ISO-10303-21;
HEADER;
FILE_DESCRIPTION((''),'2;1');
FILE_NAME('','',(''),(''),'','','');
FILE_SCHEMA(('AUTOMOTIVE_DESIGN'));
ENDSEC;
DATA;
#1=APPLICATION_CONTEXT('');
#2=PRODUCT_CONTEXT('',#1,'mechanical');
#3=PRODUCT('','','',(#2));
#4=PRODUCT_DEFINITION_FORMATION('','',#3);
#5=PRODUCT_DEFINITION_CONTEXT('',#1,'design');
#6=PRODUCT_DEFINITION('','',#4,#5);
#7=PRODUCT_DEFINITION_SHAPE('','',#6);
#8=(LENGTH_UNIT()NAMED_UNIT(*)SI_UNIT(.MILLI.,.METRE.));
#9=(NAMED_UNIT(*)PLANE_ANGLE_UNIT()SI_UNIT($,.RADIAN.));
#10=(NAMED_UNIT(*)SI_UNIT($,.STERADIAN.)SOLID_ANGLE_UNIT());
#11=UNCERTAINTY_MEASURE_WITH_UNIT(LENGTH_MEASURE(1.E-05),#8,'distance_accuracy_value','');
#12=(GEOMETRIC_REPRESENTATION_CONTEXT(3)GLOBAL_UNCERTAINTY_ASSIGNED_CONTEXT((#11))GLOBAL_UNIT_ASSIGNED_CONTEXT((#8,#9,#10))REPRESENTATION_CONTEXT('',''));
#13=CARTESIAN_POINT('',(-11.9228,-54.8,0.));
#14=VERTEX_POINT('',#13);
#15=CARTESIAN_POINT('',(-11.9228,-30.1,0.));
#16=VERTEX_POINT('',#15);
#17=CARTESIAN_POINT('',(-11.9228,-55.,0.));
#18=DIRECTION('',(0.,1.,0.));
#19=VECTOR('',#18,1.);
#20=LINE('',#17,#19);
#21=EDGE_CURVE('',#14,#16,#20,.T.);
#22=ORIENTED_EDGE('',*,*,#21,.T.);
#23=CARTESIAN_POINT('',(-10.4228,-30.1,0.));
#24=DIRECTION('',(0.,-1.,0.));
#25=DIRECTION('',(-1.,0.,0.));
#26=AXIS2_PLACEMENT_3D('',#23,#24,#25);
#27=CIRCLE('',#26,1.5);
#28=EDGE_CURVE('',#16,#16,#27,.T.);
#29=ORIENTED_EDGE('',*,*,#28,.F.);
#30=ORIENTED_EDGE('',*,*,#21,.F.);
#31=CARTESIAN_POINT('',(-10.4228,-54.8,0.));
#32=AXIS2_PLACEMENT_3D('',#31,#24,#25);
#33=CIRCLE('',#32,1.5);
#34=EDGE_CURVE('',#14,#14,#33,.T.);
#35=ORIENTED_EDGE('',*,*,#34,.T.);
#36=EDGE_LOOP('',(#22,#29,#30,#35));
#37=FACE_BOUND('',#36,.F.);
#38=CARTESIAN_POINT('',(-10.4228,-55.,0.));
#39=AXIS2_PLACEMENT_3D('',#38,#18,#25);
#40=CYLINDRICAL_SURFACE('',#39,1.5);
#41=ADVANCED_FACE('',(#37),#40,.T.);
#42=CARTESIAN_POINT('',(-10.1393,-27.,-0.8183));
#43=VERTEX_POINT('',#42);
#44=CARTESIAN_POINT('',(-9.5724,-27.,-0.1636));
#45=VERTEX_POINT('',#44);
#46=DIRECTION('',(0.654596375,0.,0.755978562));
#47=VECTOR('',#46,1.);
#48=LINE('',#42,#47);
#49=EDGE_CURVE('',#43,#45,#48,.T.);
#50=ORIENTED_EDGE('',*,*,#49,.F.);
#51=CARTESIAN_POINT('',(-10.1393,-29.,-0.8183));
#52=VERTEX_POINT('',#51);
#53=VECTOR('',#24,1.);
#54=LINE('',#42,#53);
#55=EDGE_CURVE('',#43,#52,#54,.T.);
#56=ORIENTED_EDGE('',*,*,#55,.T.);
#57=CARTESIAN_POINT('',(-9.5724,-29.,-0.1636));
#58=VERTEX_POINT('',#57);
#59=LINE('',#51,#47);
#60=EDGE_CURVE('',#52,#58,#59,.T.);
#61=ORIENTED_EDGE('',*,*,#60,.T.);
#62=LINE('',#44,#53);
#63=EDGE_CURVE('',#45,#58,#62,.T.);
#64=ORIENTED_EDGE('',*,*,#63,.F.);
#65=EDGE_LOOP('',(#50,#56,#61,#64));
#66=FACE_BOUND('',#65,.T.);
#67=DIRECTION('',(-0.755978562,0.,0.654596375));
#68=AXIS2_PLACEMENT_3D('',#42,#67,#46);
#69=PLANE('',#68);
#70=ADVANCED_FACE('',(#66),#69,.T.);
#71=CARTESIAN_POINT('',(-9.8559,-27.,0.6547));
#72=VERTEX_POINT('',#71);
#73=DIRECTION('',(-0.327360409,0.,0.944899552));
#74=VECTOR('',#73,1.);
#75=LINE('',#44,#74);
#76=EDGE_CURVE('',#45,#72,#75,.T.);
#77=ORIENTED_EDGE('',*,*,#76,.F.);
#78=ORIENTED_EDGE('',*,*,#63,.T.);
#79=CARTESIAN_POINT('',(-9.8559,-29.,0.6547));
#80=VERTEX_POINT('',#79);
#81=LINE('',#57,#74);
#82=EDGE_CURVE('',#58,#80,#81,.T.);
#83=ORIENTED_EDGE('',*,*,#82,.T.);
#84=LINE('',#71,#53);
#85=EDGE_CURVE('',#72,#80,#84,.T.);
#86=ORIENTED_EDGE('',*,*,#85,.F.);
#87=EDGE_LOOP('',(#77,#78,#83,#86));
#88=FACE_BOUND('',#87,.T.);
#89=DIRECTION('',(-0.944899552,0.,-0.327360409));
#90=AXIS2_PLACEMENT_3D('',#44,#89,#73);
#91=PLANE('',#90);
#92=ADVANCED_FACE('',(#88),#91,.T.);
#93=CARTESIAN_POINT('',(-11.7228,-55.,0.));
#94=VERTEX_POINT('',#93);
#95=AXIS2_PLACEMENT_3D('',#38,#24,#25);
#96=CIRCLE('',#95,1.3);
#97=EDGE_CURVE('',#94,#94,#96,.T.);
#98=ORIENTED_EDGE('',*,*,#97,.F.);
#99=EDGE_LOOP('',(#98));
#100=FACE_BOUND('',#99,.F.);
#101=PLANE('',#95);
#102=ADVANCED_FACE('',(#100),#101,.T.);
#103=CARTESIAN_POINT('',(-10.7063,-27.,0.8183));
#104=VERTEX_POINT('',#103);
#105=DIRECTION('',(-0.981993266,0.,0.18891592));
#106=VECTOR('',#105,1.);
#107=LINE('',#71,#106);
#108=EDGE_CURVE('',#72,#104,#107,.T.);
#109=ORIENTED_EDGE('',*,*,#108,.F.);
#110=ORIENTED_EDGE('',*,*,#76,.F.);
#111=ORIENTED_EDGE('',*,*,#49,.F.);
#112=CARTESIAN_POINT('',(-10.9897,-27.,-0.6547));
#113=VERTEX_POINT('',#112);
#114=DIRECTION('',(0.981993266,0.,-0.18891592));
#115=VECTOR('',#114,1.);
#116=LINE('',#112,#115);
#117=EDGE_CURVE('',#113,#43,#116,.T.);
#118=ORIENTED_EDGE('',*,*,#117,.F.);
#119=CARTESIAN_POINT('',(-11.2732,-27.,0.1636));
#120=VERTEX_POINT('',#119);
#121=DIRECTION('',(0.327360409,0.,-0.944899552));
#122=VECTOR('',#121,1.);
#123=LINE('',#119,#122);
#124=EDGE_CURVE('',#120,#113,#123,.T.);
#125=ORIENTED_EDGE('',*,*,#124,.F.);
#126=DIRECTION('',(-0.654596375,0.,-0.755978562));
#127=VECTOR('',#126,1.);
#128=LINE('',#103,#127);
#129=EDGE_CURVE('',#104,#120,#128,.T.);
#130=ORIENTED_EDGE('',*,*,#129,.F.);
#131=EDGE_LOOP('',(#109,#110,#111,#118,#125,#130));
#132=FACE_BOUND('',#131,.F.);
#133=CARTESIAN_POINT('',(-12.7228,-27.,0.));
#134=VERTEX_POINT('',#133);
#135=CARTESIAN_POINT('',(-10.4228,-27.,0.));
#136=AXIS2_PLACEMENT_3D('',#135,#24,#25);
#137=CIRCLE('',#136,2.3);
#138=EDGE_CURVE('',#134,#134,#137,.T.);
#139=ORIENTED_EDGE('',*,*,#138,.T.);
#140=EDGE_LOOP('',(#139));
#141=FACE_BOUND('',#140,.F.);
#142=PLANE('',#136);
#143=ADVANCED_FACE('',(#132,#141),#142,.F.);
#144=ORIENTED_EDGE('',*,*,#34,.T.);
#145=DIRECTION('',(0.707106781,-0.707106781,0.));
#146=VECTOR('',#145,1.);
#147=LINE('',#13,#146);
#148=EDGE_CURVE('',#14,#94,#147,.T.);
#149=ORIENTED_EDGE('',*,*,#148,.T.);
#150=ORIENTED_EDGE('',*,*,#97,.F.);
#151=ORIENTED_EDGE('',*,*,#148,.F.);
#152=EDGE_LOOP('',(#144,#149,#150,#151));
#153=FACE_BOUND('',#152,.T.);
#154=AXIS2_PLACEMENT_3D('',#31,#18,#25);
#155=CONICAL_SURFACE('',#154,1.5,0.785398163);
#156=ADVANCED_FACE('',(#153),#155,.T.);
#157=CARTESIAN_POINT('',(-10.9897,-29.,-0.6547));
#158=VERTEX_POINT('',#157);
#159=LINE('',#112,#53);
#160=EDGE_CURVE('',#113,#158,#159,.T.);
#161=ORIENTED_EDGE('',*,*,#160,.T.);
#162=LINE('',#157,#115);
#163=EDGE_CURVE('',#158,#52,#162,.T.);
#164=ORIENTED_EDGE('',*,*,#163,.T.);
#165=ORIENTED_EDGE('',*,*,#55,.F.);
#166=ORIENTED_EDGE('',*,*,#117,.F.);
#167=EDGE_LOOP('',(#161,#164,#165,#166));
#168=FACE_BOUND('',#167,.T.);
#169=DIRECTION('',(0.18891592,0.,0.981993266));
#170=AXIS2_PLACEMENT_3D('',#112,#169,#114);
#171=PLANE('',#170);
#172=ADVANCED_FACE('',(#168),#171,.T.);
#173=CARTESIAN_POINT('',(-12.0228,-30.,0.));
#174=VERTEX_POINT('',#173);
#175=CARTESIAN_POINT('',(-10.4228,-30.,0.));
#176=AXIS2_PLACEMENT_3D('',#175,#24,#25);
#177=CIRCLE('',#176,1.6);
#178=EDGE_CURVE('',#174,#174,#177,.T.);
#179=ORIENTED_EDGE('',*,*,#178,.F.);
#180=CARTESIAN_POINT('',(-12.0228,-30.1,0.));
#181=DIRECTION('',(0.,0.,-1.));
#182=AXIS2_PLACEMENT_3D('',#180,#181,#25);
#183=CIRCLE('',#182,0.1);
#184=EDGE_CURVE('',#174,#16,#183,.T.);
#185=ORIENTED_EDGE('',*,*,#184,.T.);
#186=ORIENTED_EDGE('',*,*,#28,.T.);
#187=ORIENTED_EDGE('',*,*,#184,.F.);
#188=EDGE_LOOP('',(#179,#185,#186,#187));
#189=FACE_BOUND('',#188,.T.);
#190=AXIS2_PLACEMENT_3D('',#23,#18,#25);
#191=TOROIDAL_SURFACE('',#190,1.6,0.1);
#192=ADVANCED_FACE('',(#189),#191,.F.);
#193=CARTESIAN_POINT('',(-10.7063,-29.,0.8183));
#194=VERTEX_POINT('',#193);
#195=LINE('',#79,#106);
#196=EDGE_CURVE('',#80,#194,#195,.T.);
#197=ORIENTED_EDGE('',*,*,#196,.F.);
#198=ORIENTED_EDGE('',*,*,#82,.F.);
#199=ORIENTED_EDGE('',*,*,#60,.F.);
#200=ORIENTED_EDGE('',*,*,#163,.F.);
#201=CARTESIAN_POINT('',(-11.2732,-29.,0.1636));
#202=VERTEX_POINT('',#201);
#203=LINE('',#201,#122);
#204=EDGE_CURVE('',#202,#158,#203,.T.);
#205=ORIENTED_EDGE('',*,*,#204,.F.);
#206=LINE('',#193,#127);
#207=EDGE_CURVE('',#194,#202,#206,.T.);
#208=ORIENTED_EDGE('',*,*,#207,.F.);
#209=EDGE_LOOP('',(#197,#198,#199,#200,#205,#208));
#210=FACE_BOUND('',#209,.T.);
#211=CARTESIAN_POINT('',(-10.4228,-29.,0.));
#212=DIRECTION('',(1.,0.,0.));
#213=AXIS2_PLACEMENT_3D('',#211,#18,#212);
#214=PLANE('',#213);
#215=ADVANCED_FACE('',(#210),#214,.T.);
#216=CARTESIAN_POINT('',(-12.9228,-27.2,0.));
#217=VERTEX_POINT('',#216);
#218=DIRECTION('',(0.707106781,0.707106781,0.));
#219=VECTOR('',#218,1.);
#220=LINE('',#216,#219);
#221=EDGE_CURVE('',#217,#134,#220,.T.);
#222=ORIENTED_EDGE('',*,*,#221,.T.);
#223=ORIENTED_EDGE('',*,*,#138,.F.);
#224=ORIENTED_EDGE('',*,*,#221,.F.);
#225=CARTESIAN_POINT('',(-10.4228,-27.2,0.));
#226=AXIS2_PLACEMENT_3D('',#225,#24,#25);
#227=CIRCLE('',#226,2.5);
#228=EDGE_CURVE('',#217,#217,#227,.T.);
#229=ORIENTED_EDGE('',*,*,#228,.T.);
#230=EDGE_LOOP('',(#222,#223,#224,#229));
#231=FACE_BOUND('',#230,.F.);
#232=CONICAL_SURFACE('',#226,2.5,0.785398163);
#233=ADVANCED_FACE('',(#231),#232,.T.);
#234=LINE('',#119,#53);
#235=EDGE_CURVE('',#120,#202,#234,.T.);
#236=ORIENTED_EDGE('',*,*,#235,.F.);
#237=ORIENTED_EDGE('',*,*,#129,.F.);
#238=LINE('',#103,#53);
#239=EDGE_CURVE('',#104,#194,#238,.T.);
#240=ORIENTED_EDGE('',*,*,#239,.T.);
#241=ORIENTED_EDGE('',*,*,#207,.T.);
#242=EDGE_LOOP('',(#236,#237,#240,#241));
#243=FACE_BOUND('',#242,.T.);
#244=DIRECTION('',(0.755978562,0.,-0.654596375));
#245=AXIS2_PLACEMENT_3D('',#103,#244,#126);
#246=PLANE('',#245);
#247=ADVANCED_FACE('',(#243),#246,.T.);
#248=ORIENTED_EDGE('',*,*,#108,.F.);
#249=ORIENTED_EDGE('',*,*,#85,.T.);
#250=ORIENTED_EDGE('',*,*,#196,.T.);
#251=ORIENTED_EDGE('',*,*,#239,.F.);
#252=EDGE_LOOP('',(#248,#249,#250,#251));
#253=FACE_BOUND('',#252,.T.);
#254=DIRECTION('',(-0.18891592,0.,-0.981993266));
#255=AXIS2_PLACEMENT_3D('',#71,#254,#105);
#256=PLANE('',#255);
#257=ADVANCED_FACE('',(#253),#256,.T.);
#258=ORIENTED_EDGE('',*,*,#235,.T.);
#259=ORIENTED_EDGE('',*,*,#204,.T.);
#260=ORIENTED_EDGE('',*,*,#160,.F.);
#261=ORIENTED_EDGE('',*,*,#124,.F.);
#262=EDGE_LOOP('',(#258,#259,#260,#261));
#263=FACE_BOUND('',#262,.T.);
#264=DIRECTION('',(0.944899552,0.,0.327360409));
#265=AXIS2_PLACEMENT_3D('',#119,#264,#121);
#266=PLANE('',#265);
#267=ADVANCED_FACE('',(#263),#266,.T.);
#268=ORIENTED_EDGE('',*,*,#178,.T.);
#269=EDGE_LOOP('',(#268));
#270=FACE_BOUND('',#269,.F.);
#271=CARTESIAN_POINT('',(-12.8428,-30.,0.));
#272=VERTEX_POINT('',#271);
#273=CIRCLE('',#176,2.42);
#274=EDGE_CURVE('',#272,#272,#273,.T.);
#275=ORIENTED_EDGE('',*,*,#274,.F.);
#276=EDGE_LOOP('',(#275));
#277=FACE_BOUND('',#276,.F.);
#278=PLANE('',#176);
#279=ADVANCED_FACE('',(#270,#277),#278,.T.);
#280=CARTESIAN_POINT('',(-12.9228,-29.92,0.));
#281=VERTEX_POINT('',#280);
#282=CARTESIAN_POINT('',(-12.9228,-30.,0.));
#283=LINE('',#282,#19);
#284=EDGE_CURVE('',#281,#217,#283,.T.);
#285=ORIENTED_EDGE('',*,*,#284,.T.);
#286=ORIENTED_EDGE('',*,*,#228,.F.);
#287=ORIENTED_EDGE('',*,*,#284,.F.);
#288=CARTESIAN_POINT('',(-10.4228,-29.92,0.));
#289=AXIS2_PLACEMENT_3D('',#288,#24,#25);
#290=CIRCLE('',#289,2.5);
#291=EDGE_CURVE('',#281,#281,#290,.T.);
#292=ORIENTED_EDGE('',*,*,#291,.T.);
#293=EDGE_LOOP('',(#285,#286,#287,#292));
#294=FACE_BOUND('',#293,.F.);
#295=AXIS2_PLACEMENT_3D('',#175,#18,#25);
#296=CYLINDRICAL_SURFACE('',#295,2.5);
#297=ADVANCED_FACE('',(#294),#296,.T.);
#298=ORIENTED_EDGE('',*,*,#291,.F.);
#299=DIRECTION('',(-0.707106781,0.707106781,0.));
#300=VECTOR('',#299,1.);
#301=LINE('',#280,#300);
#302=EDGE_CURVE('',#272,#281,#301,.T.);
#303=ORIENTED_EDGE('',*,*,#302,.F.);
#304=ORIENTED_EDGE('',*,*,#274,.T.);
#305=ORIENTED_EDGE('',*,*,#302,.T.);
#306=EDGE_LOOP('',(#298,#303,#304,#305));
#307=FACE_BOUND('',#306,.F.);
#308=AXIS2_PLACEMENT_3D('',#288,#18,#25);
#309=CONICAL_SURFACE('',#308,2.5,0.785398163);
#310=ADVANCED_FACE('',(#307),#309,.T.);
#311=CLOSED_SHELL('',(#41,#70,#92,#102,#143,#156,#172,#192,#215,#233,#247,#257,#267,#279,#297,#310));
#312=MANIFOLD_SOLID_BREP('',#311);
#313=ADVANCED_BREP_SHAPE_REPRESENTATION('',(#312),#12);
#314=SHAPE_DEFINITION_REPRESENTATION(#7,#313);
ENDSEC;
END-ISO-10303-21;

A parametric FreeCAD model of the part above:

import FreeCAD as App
import Part
import Sketcher

V = App.Vector
Q = App.Units.Quantity


def edges_at(feature, points):
    """Names of the edges that pass closest to the given points."""
    edges = feature.Shape.Edges
    near = lambda p: min(range(len(edges)), key=lambda i: edges[i].distToShape(Part.Vertex(*p))[0])
    return sorted({f"Edge{near(p) + 1}" for p in points})

doc = App.newDocument("Part")
body = doc.addObject("PartDesign::Body", "Body")

# Sketch on XY plane
sketch1 = doc.addObject("Sketcher::SketchObject", "Sketch")
body.addObject(sketch1)
sketch1.AttachmentSupport = (doc.XY_Plane, [""])
sketch1.MapMode = "FlatFace"
sketch1.addGeometry([
    Part.LineSegment(V(-10.4228, -55, 0), V(-10.4228, -27, 0)),  # 0
    Part.LineSegment(V(-10.4228, -27, 0), V(-12.9228, -27, 0)),  # 1
    Part.LineSegment(V(-12.9228, -27, 0), V(-12.9228, -30, 0)),  # 2
    Part.LineSegment(V(-12.9228, -30, 0), V(-11.9228, -30, 0)),  # 3
    Part.LineSegment(V(-11.9228, -30, 0), V(-11.9228, -55, 0)),  # 4
    Part.LineSegment(V(-11.9228, -55, 0), V(-10.4228, -55, 0)),  # 5
], False)
sketch1.addGeometry(Part.LineSegment(V(-10.4228, -27, 0), V(-10.4228, -55, 0)), True)  # axis
sketch1.addConstraint([
    Sketcher.Constraint("Coincident", 0, 2, 1, 1),
    Sketcher.Constraint("Coincident", 1, 2, 2, 1),
    Sketcher.Constraint("Coincident", 2, 2, 3, 1),
    Sketcher.Constraint("Coincident", 3, 2, 4, 1),
    Sketcher.Constraint("Coincident", 4, 2, 5, 1),
    Sketcher.Constraint("Coincident", 5, 2, 0, 1),
    Sketcher.Constraint("Vertical", 0),
    Sketcher.Constraint("Horizontal", 1),
    Sketcher.Constraint("Vertical", 2),
    Sketcher.Constraint("Horizontal", 3),
    Sketcher.Constraint("Vertical", 4),
    Sketcher.Constraint("Horizontal", 5),
    Sketcher.Constraint("Vertical", 6),
    Sketcher.Constraint("Coincident", 6, 1, 0, 2),
    Sketcher.Constraint("Horizontal", 4, 2, 6, 2),
    Sketcher.Constraint("DistanceY", 2, 2, 2, 1, Q("3 mm")),
    Sketcher.Constraint("DistanceY", 4, 2, 4, 1, Q("25 mm")),
    Sketcher.Constraint("DistanceX", 1, 2, 1, 1, Q("2.5 mm")),
    Sketcher.Constraint("DistanceX", 5, 1, 5, 2, Q("1.5 mm")),
    Sketcher.Constraint("DistanceY", 0, 2, -1, 1, Q("27 mm")),
    Sketcher.Constraint("DistanceX", 0, 2, -1, 1, Q("10.4228 mm")),
])
revolution = doc.addObject("PartDesign::Revolution", "Revolution")
body.addObject(revolution)
revolution.Profile = sketch1
revolution.ReferenceAxis = (sketch1, ["Axis0"])
revolution.Angle = 360
doc.recompute()

chamfer = doc.addObject("PartDesign::Chamfer", "Chamfer")
body.addObject(chamfer)
chamfer.Base = (revolution, edges_at(revolution, [(-7.923, -27, 0)]))
chamfer.Size = 0.2

# Sketch on XZ plane
sketch2 = doc.addObject("Sketcher::SketchObject", "Sketch001")
body.addObject(sketch2)
sketch2.AttachmentSupport = (doc.XZ_Plane, [""])
sketch2.MapMode = "FlatFace"
sketch2.AttachmentOffset = App.Placement(V(0, 0, 27), App.Rotation())
sketch2.addGeometry([
    Part.LineSegment(V(-10.7063, 0.8183, 0), V(-9.8559, 0.6547, 0)),  # 0
    Part.LineSegment(V(-9.8559, 0.6547, 0), V(-9.5724, -0.1636, 0)),  # 1
    Part.LineSegment(V(-9.5724, -0.1636, 0), V(-10.1393, -0.8183, 0)),  # 2
    Part.LineSegment(V(-10.1393, -0.8183, 0), V(-10.9897, -0.6547, 0)),  # 3
    Part.LineSegment(V(-10.9897, -0.6547, 0), V(-11.2732, 0.1636, 0)),  # 4
    Part.LineSegment(V(-11.2732, 0.1636, 0), V(-10.7063, 0.8183, 0)),  # 5
], False)
sketch2.addConstraint([
    Sketcher.Constraint("Coincident", 0, 2, 1, 1),
    Sketcher.Constraint("Coincident", 1, 2, 2, 1),
    Sketcher.Constraint("Coincident", 2, 2, 3, 1),
    Sketcher.Constraint("Coincident", 3, 2, 4, 1),
    Sketcher.Constraint("Coincident", 4, 2, 5, 1),
    Sketcher.Constraint("Coincident", 5, 2, 0, 1),
    Sketcher.Constraint("Parallel", 0, 3),
    Sketcher.Constraint("Parallel", 1, 4),
    Sketcher.Constraint("Parallel", 2, 5),
    Sketcher.Constraint("Equal", 0, 1),
    Sketcher.Constraint("Equal", 1, 2),
    Sketcher.Constraint("Equal", 2, 3),
    Sketcher.Constraint("Angle", 0, Q("-10.8895 deg")),
    Sketcher.Constraint("Angle", 2, Q("-130.889 deg")),
    Sketcher.Constraint("Distance", 0, Q("0.866 mm")),
    Sketcher.Constraint("DistanceX", 0, 2, -1, 1, Q("9.856 mm")),
    Sketcher.Constraint("DistanceY", 2, 2, 0, 2, Q("1.473 mm")),
    Sketcher.Constraint("DistanceY", -1, 1, 0, 2, Q("0.6547 mm")),
])
pocket1 = doc.addObject("PartDesign::Pocket", "Pocket")
body.addObject(pocket1)
pocket1.Profile = sketch2
pocket1.Length = 2
pocket1.Reversed = True
doc.recompute()

fillet = doc.addObject("PartDesign::Fillet", "Fillet")
body.addObject(fillet)
fillet.Base = (pocket1, edges_at(pocket1, [(-8.923, -30, 0)]))
fillet.Radius = 0.1
doc.recompute()

chamfer2 = doc.addObject("PartDesign::Chamfer", "Chamfer001")
body.addObject(chamfer2)
chamfer2.Base = (fillet, edges_at(fillet, [(-8.923, -55, 0)]))
chamfer2.Size = 0.2
doc.recompute()

chamfer3 = doc.addObject("PartDesign::Chamfer", "Chamfer002")
body.addObject(chamfer3)
chamfer3.Base = (chamfer2, edges_at(chamfer2, [(-7.923, -30, 0)]))
chamfer3.Size = 0.08

doc.recompute()
